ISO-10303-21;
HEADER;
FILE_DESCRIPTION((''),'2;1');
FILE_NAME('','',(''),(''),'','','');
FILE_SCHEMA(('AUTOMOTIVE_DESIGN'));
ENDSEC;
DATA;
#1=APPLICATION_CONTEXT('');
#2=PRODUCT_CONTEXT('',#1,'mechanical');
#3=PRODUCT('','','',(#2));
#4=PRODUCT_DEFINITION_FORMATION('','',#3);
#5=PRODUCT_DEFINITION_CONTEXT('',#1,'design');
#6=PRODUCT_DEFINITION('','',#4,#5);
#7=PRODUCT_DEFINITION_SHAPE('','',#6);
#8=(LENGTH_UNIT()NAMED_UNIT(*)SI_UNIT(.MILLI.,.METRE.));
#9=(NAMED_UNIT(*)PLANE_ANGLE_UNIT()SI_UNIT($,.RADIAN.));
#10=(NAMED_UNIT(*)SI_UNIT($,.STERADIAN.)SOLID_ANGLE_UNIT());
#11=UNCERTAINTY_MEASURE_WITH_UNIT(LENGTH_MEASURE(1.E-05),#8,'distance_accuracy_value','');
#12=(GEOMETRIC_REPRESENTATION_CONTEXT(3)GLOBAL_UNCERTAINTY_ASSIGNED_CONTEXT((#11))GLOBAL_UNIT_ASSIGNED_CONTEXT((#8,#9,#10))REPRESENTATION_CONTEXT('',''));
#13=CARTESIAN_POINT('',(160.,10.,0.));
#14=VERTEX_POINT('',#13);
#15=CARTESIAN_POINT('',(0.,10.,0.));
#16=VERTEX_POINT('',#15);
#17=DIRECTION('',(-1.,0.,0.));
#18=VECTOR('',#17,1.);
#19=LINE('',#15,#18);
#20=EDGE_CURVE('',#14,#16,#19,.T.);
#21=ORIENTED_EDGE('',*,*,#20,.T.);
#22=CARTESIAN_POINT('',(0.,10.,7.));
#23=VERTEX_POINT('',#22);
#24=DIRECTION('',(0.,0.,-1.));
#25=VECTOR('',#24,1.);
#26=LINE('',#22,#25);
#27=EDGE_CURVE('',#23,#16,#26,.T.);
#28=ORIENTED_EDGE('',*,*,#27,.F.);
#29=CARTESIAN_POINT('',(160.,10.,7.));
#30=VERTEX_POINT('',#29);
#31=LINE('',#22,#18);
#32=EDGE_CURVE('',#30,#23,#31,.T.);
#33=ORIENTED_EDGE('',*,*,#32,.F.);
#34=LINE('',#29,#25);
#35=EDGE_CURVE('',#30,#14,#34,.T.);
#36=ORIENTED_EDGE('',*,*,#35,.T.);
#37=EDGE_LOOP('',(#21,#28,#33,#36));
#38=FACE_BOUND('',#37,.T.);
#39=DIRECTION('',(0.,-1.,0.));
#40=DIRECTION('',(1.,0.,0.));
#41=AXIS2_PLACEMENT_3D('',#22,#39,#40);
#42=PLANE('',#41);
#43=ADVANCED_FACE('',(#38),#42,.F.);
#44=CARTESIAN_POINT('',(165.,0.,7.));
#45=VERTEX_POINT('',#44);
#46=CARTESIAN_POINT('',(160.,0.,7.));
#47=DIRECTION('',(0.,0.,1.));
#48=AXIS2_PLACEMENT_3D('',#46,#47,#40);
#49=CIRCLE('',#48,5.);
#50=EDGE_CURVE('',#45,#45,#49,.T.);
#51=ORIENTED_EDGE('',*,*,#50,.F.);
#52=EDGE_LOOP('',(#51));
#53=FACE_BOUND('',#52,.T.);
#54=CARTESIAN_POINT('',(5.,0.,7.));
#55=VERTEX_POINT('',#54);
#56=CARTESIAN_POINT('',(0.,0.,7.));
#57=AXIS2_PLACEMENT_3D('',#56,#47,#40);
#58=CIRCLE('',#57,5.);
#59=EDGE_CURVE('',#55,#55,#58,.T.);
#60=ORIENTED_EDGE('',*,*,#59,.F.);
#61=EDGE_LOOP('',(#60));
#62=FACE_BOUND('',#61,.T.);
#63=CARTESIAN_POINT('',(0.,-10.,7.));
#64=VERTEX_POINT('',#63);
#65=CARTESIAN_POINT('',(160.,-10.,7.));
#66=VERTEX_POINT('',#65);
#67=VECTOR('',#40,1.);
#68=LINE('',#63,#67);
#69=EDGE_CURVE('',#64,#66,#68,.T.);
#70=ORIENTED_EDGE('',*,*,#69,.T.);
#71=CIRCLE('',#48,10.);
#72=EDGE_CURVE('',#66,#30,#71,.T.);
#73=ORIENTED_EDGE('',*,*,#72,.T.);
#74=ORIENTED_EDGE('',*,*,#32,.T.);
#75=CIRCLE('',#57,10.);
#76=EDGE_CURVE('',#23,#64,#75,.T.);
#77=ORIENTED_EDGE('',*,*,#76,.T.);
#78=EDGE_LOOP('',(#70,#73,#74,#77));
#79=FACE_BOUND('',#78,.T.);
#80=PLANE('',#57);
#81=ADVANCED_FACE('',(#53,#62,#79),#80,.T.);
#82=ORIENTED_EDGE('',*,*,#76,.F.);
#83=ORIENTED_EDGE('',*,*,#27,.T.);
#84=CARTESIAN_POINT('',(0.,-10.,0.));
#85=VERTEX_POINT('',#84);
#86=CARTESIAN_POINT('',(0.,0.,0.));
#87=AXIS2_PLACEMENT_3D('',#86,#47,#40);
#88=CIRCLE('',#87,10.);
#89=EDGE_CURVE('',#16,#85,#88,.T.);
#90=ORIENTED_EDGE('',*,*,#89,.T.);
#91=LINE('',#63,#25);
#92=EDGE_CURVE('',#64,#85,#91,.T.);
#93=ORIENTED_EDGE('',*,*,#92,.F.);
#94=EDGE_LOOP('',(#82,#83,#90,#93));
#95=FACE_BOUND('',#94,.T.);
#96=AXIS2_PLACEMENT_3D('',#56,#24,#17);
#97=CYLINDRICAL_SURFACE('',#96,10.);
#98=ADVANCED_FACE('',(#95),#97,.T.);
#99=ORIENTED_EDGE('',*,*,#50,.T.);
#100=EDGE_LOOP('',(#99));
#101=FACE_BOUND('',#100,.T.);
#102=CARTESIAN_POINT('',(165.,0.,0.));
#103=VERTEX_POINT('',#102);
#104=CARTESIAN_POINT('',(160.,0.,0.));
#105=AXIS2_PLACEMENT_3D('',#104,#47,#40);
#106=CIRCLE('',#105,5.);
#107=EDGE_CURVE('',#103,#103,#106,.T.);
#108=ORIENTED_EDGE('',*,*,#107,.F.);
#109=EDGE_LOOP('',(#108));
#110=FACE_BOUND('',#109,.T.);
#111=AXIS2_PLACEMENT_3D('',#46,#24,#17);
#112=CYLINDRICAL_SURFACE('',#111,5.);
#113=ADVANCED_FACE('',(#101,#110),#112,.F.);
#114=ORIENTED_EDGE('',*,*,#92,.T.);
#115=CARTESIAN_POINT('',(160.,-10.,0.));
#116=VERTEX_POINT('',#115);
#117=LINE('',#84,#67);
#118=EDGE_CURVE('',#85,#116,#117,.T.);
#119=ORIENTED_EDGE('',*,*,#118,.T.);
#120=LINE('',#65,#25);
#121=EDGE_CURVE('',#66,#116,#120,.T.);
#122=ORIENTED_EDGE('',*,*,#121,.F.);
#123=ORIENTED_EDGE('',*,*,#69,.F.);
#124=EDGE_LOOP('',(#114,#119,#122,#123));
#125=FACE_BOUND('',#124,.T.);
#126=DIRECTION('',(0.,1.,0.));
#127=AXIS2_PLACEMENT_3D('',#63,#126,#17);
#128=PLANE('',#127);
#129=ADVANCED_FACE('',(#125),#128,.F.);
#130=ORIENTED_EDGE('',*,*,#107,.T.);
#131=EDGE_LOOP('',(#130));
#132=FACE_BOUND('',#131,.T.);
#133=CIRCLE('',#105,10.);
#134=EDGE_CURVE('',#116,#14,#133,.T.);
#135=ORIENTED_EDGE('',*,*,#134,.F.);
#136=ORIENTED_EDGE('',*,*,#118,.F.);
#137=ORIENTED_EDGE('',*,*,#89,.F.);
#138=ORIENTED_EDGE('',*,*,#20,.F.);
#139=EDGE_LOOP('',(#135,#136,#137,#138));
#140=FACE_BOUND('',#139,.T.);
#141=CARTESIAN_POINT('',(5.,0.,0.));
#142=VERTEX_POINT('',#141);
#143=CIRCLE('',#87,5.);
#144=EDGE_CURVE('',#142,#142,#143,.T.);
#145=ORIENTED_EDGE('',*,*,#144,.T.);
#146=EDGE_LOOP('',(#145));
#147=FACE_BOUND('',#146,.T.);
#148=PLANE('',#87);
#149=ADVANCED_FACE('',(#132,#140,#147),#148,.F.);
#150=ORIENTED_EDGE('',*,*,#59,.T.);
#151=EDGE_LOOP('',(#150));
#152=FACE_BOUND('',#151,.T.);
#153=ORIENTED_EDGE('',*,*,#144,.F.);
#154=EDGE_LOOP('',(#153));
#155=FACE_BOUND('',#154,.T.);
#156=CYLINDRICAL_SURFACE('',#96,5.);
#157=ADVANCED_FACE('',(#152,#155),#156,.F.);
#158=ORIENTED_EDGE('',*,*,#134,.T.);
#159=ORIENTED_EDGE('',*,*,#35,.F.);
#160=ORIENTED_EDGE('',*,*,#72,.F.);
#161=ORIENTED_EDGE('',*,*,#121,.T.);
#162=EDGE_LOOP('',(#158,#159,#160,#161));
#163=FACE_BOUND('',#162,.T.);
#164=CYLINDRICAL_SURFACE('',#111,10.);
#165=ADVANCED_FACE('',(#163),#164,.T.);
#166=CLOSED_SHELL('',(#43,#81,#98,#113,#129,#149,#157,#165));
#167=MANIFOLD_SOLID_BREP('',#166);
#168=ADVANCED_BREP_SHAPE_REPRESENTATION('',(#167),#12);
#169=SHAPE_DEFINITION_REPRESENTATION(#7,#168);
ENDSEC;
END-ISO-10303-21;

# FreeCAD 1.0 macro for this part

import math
import FreeCAD as App
import Part
import Sketcher

V = App.Vector

doc = App.newDocument("Part")
body = doc.addObject("PartDesign::Body", "Body")

# Sketch on XY plane
sketch1 = body.newObject("Sketcher::SketchObject", "Sketch")
sketch1.AttachmentSupport = (doc.getObject("XY_Plane"), [""])
sketch1.MapMode = "FlatFace"
sketch1.addGeometry([
    Part.LineSegment(V(160, 10, 0), V(0, 10, 0)),  # 0
    Part.ArcOfCircle(Part.Circle(V(0, 0, 0), V(0, 0, 1), 10), math.radians(90), math.radians(270)),  # 1
    Part.LineSegment(V(0, -10, 0), V(160, -10, 0)),  # 2
    Part.ArcOfCircle(Part.Circle(V(160, 0, 0), V(0, 0, 1), 10), math.radians(-90), math.radians(90)),  # 3
    Part.Circle(V(160, 0, 0), V(0, 0, 1), 5),  # 4
    Part.Circle(V(0, 0, 0), V(0, 0, 1), 5),  # 5
], False)
sketch1.addConstraint([
    Sketcher.Constraint("Tangent", 0, 2, 1, 1),
    Sketcher.Constraint("Tangent", 1, 2, 2, 1),
    Sketcher.Constraint("Tangent", 2, 2, 3, 1),
    Sketcher.Constraint("Tangent", 3, 2, 0, 1),
    Sketcher.Constraint("Horizontal", 0),
    Sketcher.Constraint("Horizontal", 2),
    Sketcher.Constraint("Coincident", 1, 3, -1, 1),
    Sketcher.Constraint("Coincident", 5, 3, -1, 1),
    Sketcher.Constraint("Coincident", 4, 3, 3, 3),
    Sketcher.Constraint("Equal", 4, 5),
    Sketcher.Constraint("Diameter", 4, 10.0),
    Sketcher.Constraint("Radius", 1, 10.0),
    Sketcher.Constraint("DistanceX", 0, 2, 0, 1, 160.0),
])
pad1 = body.newObject("PartDesign::Pad", "Pad")
pad1.Profile = sketch1
pad1.Length = 7

doc.recompute()
